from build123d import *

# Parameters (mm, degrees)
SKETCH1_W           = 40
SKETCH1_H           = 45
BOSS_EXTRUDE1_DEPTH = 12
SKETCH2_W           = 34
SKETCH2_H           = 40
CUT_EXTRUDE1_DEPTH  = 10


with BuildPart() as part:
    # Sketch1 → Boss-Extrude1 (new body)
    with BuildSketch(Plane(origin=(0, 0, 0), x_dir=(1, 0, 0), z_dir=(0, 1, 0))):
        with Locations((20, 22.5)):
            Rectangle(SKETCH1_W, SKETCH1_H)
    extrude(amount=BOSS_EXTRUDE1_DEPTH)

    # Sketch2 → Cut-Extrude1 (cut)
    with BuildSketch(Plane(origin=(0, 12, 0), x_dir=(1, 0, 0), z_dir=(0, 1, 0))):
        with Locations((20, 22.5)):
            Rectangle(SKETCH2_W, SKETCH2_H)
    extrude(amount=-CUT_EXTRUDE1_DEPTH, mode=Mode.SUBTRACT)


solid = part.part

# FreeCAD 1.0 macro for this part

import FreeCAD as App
import Part
import Sketcher

V = App.Vector


def add_polygon(sketch, points):
    """Adds a closed chain of lines whose ends are joined by coincident constraints."""
    first, n = sketch.GeometryCount, len(points)
    for a, b in zip(points, points[1:] + points[:1]):
        sketch.addGeometry(Part.LineSegment(App.Vector(*a, 0), App.Vector(*b, 0)), False)
    for i in range(n):
        sketch.addConstraint(Sketcher.Constraint("Coincident", first + i, 2, first + (i + 1) % n, 1))

doc = App.newDocument("Part")
body = doc.addObject("PartDesign::Body", "Body")

sketch1 = body.newObject("Sketcher::SketchObject", "Sketch")
sketch1.AttachmentSupport = (doc.getObject("XZ_Plane"), [""])
sketch1.MapMode = "FlatFace"
add_polygon(sketch1, [(0, -45), (0, 0), (40, 0), (40, -45)])
sketch1.addConstraint([
    Sketcher.Constraint("Vertical", 0),
    Sketcher.Constraint("Horizontal", 1),
    Sketcher.Constraint("Vertical", 2),
    Sketcher.Constraint("Horizontal", 3),
    Sketcher.Constraint("Coincident", 0, 2, -1, 1),
    Sketcher.Constraint("DistanceX", 1, 1, 1, 2, 40.0),
    Sketcher.Constraint("DistanceY", 0, 1, 0, 2, 45.0),
])
pad1 = body.newObject("PartDesign::Pad", "Pad")
pad1.Profile = sketch1
pad1.Length = 12
pad1.Reversed = True

sketch2 = body.newObject("Sketcher::SketchObject", "Sketch001")
sketch2.AttachmentSupport = (doc.getObject("XZ_Plane"), [""])
sketch2.MapMode = "FlatFace"
sketch2.AttachmentOffset = App.Placement(V(0, 0, -12), App.Rotation())
add_polygon(sketch2, [(3, -42.5), (3, -2.5), (37, -2.5), (37, -42.5)])
sketch2.addConstraint([
    Sketcher.Constraint("Vertical", 0),
    Sketcher.Constraint("Horizontal", 1),
    Sketcher.Constraint("Vertical", 2),
    Sketcher.Constraint("Horizontal", 3),
    Sketcher.Constraint("DistanceX", 1, 1, 1, 2, 34.0),
    Sketcher.Constraint("DistanceY", 0, 1, 0, 2, 40.0),
    Sketcher.Constraint("DistanceX", -1, 1, 0, 2, 3.0),
    Sketcher.Constraint("DistanceY", 0, 2, -1, 1, 2.5),
])
pocket1 = body.newObject("PartDesign::Pocket", "Pocket")
pocket1.Profile = sketch2
pocket1.Length = 10
pocket1.Reversed = True

doc.recompute()
